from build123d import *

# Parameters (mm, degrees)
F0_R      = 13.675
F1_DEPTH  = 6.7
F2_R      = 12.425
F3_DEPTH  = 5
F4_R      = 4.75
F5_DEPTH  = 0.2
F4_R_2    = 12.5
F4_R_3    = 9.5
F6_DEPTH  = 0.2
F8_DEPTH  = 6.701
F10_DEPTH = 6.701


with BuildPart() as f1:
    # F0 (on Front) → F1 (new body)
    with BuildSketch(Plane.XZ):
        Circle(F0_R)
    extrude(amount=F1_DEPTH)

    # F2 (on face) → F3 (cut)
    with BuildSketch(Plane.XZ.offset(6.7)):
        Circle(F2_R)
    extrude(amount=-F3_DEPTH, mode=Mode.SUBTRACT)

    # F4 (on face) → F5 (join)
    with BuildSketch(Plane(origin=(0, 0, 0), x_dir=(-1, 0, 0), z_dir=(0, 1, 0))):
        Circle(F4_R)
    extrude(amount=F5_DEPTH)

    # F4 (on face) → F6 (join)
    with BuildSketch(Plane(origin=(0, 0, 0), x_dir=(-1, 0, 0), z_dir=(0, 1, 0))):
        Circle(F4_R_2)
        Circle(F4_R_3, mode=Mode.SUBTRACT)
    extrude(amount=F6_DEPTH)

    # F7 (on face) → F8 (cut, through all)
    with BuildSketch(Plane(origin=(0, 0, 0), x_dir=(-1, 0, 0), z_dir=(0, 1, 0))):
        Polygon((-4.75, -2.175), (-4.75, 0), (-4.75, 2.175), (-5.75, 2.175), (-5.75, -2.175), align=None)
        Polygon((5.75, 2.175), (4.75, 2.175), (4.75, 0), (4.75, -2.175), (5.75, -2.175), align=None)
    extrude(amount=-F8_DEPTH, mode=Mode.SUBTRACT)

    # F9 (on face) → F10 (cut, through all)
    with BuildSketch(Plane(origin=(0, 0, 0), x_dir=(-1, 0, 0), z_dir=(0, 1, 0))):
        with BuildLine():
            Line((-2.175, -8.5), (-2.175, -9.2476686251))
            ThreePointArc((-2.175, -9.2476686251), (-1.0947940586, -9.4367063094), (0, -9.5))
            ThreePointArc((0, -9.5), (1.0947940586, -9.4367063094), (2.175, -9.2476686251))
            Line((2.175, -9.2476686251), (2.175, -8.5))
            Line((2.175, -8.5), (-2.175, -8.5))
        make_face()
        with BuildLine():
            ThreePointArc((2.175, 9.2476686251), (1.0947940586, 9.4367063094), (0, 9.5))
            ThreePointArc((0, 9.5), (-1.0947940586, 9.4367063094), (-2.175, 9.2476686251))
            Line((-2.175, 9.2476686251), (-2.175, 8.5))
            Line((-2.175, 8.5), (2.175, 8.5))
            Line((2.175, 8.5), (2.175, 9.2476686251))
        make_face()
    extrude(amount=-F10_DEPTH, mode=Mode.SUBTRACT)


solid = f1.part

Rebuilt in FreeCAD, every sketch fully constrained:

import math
import FreeCAD as App
import Part
import Sketcher
from FreeCAD import Vector
Q = App.Units.Quantity


def add_polygon(sketch, points):
    """Adds a closed chain of lines whose ends are joined by coincident constraints."""
    first, n = sketch.GeometryCount, len(points)
    for a, b in zip(points, points[1:] + points[:1]):
        sketch.addGeometry(Part.LineSegment(App.Vector(*a, 0), App.Vector(*b, 0)), False)
    for i in range(n):
        sketch.addConstraint(Sketcher.Constraint("Coincident", first + i, 2, first + (i + 1) % n, 1))

doc = App.newDocument("Part")
body = doc.addObject("PartDesign::Body", "Body")

sketch1 = body.newObject("Sketcher::SketchObject", "Sketch")
sketch1.AttachmentSupport = (doc.getObject("XZ_Plane"), [""])
sketch1.MapMode = "FlatFace"
sketch1.addGeometry(Part.Circle(Vector(0, 0, 0), Vector(0, 0, 1), 13.675), False)
sketch1.addConstraint([
    Sketcher.Constraint("Coincident", 0, 3, -1, 1),
    Sketcher.Constraint("Diameter", 0, Q("27.35 mm")),
])
pad1 = body.newObject("PartDesign::Pad", "Pad")
pad1.Profile = sketch1
pad1.Length = 6.7

sketch2 = body.newObject("Sketcher::SketchObject", "Sketch001")
sketch2.AttachmentSupport = (doc.getObject("XZ_Plane"), [""])
sketch2.MapMode = "FlatFace"
sketch2.AttachmentOffset = App.Placement(Vector(0, 0, 6.7), App.Rotation())
sketch2.addGeometry(Part.Circle(Vector(0, 0, 0), Vector(0, 0, 1), 12.425), False)
sketch2.addConstraint([
    Sketcher.Constraint("Coincident", 0, 3, -1, 1),
    Sketcher.Constraint("Diameter", 0, Q("24.85 mm")),
])
pocket1 = body.newObject("PartDesign::Pocket", "Pocket")
pocket1.Profile = sketch2
pocket1.Length = 5

sketch3 = body.newObject("Sketcher::SketchObject", "Sketch002")
sketch3.AttachmentSupport = (doc.getObject("XZ_Plane"), [""])
sketch3.MapMode = "FlatFace"
sketch3.addGeometry(Part.Circle(Vector(0, 0, 0), Vector(0, 0, 1), 4.75), False)
sketch3.addConstraint([
    Sketcher.Constraint("Coincident", 0, 3, -1, 1),
    Sketcher.Constraint("Diameter", 0, Q("9.5 mm")),
])
pad2 = body.newObject("PartDesign::Pad", "Pad001")
pad2.Profile = sketch3
pad2.Length = 0.2
pad2.Reversed = True

sketch4 = body.newObject("Sketcher::SketchObject", "Sketch003")
sketch4.AttachmentSupport = (doc.getObject("XZ_Plane"), [""])
sketch4.MapMode = "FlatFace"
sketch4.addGeometry([
    Part.Circle(Vector(0, 0, 0), Vector(0, 0, 1), 12.5),
    Part.Circle(Vector(0, 0, 0), Vector(0, 0, 1), 9.5),
], False)
sketch4.addConstraint([
    Sketcher.Constraint("Coincident", 0, 3, -1, 1),
    Sketcher.Constraint("Coincident", 1, 3, -1, 1),
    Sketcher.Constraint("Diameter", 0, Q("25 mm")),
    Sketcher.Constraint("Diameter", 1, Q("19 mm")),
])
pad3 = body.newObject("PartDesign::Pad", "Pad002")
pad3.Profile = sketch4
pad3.Length = 0.2
pad3.Reversed = True

sketch5 = body.newObject("Sketcher::SketchObject", "Sketch004")
sketch5.AttachmentSupport = (doc.getObject("XZ_Plane"), [""])
sketch5.MapMode = "FlatFace"
add_polygon(sketch5, [(4.75, -2.175), (4.75, 2.175), (5.75, 2.175), (5.75, -2.175)])
add_polygon(sketch5, [(-5.75, 2.175), (-4.75, 2.175), (-4.75, -2.175), (-5.75, -2.175)])
sketch5.addConstraint([
    Sketcher.Constraint("Vertical", 0),
    Sketcher.Constraint("Horizontal", 1),
    Sketcher.Constraint("Vertical", 2),
    Sketcher.Constraint("Horizontal", 3),
    Sketcher.Constraint("Horizontal", 4),
    Sketcher.Constraint("Vertical", 5),
    Sketcher.Constraint("Horizontal", 6),
    Sketcher.Constraint("Vertical", 7),
    Sketcher.Constraint("Symmetric", 3, 2, 4, 2, -1, 1),
    Sketcher.Constraint("Symmetric", 1, 2, 6, 2, -1, 1),
    Sketcher.Constraint("Horizontal", 1, 2, 4, 2),
    Sketcher.Constraint("DistanceX", 1, 1, 1, 2, Q("1 mm")),
    Sketcher.Constraint("DistanceY", 0, 1, 0, 2, Q("4.35 mm")),
    Sketcher.Constraint("DistanceX", 4, 2, 0, 2, Q("9.5 mm")),
])
pocket2 = body.newObject("PartDesign::Pocket", "Pocket001")
pocket2.Profile = sketch5
pocket2.Type = "ThroughAll"
pocket2.Reversed = True

sketch6 = body.newObject("Sketcher::SketchObject", "Sketch005")
sketch6.AttachmentSupport = (doc.getObject("XZ_Plane"), [""])
sketch6.MapMode = "FlatFace"
sketch6.addGeometry([
    Part.LineSegment(Vector(2.175, -8.5, 0), Vector(2.175, -9.247669, 0)),
    Part.ArcOfCircle(Part.Circle(Vector(0, 0, 0), Vector(0, 0, 1), 9.5), math.radians(-90), math.radians(-76.764893)),
    Part.ArcOfCircle(Part.Circle(Vector(0, 0, 0), Vector(0, 0, 1), 9.5), math.radians(-103.235107), math.radians(-90)),
    Part.LineSegment(Vector(-2.175, -9.247669, 0), Vector(-2.175, -8.5, 0)),
    Part.LineSegment(Vector(-2.175, -8.5, 0), Vector(2.175, -8.5, 0)),
    Part.ArcOfCircle(Part.Circle(Vector(0, 0, 0), Vector(0, 0, 1), 9.5), math.radians(90), math.radians(103.235107)),
    Part.ArcOfCircle(Part.Circle(Vector(0, 0, 0), Vector(0, 0, 1), 9.5), math.radians(76.764893), math.radians(90)),
    Part.LineSegment(Vector(2.175, 9.247669, 0), Vector(2.175, 8.5, 0)),
    Part.LineSegment(Vector(2.175, 8.5, 0), Vector(-2.175, 8.5, 0)),
    Part.LineSegment(Vector(-2.175, 8.5, 0), Vector(-2.175, 9.247669, 0)),
], False)
sketch6.addConstraint([
    Sketcher.Constraint("Coincident", 0, 2, 1, 2),
    Sketcher.Constraint("Tangent", 1, 1, 2, 2),
    Sketcher.Constraint("Coincident", 2, 1, 3, 1),
    Sketcher.Constraint("Coincident", 3, 2, 4, 1),
    Sketcher.Constraint("Coincident", 4, 2, 0, 1),
    Sketcher.Constraint("Tangent", 5, 1, 6, 2),
    Sketcher.Constraint("Coincident", 6, 1, 7, 1),
    Sketcher.Constraint("Coincident", 7, 2, 8, 1),
    Sketcher.Constraint("Coincident", 8, 2, 9, 1),
    Sketcher.Constraint("Coincident", 9, 2, 5, 2),
    Sketcher.Constraint("Vertical", 0),
    Sketcher.Constraint("Vertical", 3),
    Sketcher.Constraint("Horizontal", 4),
    Sketcher.Constraint("Vertical", 7),
    Sketcher.Constraint("Horizontal", 8),
    Sketcher.Constraint("Vertical", 9),
    Sketcher.Constraint("Coincident", 1, 3, -1, 1),
    Sketcher.Constraint("Coincident", 5, 3, -1, 1),
    Sketcher.Constraint("Equal", 1, 2),
    Sketcher.Constraint("Equal", 2, 5),
    Sketcher.Constraint("Equal", 5, 6),
    Sketcher.Constraint("Symmetric", 3, 2, 7, 2, -1, 1),
    Sketcher.Constraint("PointOnObject", 1, 1, -2),
    Sketcher.Constraint("PointOnObject", 5, 1, -2),
    Sketcher.Constraint("Horizontal", 0, 2, 2, 1),
    Sketcher.Constraint("Horizontal", 6, 1, 9, 2),
    Sketcher.Constraint("Radius", 1, Q("9.5 mm")),
    Sketcher.Constraint("DistanceY", 1, 1, 3, 2, Q("1 mm")),
    Sketcher.Constraint("DistanceX", 4, 1, 4, 2, Q("4.35 mm")),
])
pocket3 = body.newObject("PartDesign::Pocket", "Pocket002")
pocket3.Profile = sketch6
pocket3.Type = "ThroughAll"
pocket3.Reversed = True

doc.recompute()
